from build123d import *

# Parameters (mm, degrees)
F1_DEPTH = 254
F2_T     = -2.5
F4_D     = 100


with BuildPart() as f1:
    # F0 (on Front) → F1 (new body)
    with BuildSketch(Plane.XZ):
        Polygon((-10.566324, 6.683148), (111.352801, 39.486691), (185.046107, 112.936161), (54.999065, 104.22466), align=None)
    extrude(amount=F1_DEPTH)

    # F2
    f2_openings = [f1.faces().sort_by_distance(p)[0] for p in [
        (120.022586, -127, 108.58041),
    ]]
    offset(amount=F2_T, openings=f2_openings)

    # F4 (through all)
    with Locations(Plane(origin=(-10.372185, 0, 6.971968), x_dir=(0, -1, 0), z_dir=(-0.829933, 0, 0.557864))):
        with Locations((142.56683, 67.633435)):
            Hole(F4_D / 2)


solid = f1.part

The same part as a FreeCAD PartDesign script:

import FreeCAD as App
import Part
import Sketcher

V = App.Vector


def faces_at(feature, points):
    """Names of the faces that lie closest to the given points."""
    faces = feature.Shape.Faces
    near = lambda p: min(range(len(faces)), key=lambda i: faces[i].distToShape(Part.Vertex(*p))[0])
    return sorted({f"Face{near(p) + 1}" for p in points})

doc = App.newDocument("Part")
body = doc.addObject("PartDesign::Body", "Body")

sketch1 = doc.addObject("Sketcher::SketchObject", "Sketch")
body.addObject(sketch1)
sketch1.AttachmentSupport = (doc.XZ_Plane, [""])
sketch1.MapMode = "FlatFace"
sketch1.addGeometry([
    Part.LineSegment(V(-11, 7, 0), V(111, 39, 0)),
    Part.LineSegment(V(111, 39, 0), V(185, 113, 0)),
    Part.LineSegment(V(185, 113, 0), V(55, 104, 0)),
    Part.LineSegment(V(55, 104, 0), V(-11, 7, 0)),
], False)
sketch1.addConstraint([
    Sketcher.Constraint("Coincident", 0, 2, 1, 1),
    Sketcher.Constraint("Coincident", 1, 2, 2, 1),
    Sketcher.Constraint("Coincident", 2, 2, 3, 1),
    Sketcher.Constraint("Coincident", 3, 2, 0, 1),
    Sketcher.Constraint("DistanceX", -1, 1, 0, 2, 111.352801),
    Sketcher.Constraint("DistanceY", 2, 2, 1, 2, 8.711501),
    Sketcher.Constraint("Distance", 0, 126.255081),
    Sketcher.Constraint("Distance", 3, 117.529429),
    Sketcher.Constraint("DistanceY", -1, 1, 0, 2, 39.486691),
    Sketcher.Constraint("DistanceY", -1, 1, 1, 2, 112.936161),
    Sketcher.Constraint("DistanceX", 2, 2, 1, 2, 130.047042),
    Sketcher.Constraint("DistanceX", 3, 2, 2, 2, 65.565389),
])
pad1 = doc.addObject("PartDesign::Pad", "Pad")
body.addObject(pad1)
pad1.Profile = sketch1
pad1.Length = 254
doc.recompute()

thickness = doc.addObject("PartDesign::Thickness", "Thickness")
body.addObject(thickness)
thickness.Base = (pad1, faces_at(pad1, [(120.023, -127, 108.58)]))
thickness.Value = 2.5
thickness.Reversed = True
thickness.Join = "Arc"

sketch2 = doc.addObject("Sketcher::SketchObject", "Sketch001")
body.addObject(sketch2)
sketch2.Placement = App.Placement(V(-10.372184, 0, 6.97197), App.Rotation(V(0, -1, 0), V(0.557863714, 0, 0.829932574), V(-0.829932574, 0, 0.557863714), "ZXY"))
sketch2.addGeometry(Part.Circle(V(143, 68, 0), V(0, 0, 1), 50), False)
sketch2.addConstraint([
    Sketcher.Constraint("Diameter", 0, 100.0),
    Sketcher.Constraint("DistanceX", -1, 1, 0, 3, 142.56683),
    Sketcher.Constraint("DistanceY", -1, 1, 0, 3, 67.633433),
])
doc.recompute()
hole = doc.addObject("PartDesign::Hole", "Hole")
body.addObject(hole)
hole.Profile = sketch2
hole.ThreadType = "None"
hole.Diameter = 100
hole.DepthType = "ThroughAll"

doc.recompute()
